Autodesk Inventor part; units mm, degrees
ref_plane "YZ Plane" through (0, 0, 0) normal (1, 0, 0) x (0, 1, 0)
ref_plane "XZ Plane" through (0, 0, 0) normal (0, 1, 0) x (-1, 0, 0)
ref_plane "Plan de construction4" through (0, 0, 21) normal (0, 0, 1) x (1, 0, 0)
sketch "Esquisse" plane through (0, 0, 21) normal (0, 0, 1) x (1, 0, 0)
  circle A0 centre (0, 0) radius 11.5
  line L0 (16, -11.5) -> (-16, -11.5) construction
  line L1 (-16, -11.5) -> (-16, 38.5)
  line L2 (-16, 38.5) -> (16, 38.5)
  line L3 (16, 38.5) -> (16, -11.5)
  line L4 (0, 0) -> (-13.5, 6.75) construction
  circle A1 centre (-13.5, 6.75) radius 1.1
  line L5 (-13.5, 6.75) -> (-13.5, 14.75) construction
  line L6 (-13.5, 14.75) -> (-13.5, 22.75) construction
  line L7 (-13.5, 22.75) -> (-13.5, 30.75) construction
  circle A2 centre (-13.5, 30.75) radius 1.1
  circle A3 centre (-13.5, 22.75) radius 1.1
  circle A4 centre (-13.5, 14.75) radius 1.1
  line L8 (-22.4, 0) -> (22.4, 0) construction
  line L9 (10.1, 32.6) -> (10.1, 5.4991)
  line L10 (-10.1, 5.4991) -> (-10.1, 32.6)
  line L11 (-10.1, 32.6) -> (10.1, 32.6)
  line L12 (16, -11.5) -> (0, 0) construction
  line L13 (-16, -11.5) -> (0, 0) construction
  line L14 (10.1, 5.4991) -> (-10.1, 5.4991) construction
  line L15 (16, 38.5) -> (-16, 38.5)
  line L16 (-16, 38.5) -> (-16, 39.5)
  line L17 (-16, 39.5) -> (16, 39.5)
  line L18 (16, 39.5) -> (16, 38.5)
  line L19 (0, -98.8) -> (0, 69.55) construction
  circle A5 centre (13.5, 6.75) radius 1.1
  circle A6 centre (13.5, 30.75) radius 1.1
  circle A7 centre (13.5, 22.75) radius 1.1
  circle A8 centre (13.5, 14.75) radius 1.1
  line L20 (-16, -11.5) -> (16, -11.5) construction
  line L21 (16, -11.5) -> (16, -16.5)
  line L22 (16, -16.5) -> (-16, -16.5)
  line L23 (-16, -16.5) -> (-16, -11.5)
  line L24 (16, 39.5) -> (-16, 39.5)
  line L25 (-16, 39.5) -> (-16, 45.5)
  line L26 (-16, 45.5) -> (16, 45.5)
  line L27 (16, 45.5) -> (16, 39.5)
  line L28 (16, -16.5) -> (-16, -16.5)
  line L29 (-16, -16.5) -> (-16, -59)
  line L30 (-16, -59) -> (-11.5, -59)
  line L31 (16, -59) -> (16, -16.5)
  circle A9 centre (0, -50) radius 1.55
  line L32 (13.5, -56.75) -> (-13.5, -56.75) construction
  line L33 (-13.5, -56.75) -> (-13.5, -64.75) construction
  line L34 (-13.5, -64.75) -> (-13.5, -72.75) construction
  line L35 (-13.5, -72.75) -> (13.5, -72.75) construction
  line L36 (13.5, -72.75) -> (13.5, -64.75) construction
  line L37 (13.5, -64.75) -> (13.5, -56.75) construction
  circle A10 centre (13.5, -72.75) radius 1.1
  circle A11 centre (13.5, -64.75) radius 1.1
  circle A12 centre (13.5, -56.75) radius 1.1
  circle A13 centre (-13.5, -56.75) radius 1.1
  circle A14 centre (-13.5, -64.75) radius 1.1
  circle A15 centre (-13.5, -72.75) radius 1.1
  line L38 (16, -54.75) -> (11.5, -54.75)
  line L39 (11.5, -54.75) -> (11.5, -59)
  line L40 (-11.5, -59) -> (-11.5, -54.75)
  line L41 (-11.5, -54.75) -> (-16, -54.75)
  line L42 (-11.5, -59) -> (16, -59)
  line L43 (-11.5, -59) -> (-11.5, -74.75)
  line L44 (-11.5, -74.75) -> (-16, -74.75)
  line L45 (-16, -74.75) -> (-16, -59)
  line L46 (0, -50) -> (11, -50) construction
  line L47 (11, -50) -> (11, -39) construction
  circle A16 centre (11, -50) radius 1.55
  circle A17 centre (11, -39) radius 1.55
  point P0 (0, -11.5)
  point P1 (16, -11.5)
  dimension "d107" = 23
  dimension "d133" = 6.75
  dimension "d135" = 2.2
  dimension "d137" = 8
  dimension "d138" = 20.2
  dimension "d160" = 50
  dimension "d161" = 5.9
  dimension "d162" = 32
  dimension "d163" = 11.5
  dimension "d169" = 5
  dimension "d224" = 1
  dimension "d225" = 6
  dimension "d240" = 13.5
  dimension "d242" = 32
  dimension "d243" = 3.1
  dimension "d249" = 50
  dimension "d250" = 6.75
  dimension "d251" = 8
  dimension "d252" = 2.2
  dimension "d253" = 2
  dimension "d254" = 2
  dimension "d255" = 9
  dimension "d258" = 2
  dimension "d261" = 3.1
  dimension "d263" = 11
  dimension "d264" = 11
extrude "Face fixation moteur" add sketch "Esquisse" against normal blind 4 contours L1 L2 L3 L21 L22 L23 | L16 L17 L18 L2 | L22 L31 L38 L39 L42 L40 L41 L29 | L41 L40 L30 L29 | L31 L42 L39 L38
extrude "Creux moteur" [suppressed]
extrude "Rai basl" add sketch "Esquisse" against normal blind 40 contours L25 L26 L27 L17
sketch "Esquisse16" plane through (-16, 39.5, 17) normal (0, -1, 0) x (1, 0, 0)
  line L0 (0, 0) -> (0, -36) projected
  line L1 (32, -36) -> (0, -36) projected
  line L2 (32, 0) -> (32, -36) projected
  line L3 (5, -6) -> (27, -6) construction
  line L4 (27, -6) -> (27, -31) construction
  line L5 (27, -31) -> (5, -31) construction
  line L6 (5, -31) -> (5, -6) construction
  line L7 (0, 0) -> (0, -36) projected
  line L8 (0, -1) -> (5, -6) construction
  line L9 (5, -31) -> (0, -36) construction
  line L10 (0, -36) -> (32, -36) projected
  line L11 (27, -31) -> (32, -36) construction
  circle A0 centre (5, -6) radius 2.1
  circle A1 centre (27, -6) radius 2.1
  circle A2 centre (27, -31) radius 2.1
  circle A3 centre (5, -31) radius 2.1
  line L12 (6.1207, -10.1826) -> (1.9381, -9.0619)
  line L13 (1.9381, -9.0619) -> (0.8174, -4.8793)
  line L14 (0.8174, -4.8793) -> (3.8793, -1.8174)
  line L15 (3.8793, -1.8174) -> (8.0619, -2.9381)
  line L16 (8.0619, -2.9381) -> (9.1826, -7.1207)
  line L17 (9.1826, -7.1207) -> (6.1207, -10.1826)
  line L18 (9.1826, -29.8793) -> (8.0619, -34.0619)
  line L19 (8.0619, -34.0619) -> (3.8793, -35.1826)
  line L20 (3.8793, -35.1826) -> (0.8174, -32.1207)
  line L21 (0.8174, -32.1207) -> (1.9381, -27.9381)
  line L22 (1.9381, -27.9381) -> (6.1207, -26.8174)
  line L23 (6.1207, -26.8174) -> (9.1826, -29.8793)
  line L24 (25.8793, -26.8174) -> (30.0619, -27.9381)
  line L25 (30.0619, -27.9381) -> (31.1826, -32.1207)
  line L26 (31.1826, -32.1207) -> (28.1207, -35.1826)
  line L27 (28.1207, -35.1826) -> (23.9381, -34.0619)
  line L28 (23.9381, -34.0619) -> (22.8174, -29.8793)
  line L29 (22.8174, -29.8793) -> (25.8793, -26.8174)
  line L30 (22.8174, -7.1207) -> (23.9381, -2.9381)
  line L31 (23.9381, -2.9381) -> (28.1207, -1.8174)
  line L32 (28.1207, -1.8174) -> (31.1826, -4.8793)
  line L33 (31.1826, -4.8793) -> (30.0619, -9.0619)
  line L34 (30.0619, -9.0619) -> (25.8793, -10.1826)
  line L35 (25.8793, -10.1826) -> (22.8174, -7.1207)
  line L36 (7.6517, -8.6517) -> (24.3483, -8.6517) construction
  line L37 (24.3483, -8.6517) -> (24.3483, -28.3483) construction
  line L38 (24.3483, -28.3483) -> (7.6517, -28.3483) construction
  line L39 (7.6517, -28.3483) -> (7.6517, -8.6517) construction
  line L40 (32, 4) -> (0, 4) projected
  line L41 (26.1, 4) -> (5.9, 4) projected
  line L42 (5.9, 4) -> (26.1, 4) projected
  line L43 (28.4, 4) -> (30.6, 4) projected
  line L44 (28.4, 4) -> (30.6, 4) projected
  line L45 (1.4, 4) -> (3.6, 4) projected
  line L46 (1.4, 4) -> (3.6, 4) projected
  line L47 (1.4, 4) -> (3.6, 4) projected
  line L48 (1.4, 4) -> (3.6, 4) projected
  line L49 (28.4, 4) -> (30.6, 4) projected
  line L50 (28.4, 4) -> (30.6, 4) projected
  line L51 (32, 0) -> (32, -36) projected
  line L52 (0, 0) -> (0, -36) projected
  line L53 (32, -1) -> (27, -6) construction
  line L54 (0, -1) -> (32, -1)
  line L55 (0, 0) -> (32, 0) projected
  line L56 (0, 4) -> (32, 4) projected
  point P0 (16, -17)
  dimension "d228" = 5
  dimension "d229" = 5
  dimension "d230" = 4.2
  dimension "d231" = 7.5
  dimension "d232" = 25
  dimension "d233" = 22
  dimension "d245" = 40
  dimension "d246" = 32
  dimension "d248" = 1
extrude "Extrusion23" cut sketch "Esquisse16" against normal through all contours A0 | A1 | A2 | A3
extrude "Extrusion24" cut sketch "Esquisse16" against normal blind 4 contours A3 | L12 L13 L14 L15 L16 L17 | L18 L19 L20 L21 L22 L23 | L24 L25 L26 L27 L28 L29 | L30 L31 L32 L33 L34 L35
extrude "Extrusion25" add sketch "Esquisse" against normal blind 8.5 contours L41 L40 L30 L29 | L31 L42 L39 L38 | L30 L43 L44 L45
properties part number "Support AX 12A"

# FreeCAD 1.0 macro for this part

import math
import FreeCAD as App
import Part
import Sketcher
Q = App.Units.Quantity


def add_polygon(sketch, points):
    """Adds a closed chain of lines whose ends are joined by coincident constraints."""
    first, n = sketch.GeometryCount, len(points)
    for a, b in zip(points, points[1:] + points[:1]):
        sketch.addGeometry(Part.LineSegment(App.Vector(*a, 0), App.Vector(*b, 0)), False)
    for i in range(n):
        sketch.addConstraint(Sketcher.Constraint("Coincident", first + i, 2, first + (i + 1) % n, 1))

doc = App.newDocument("Part")
body = doc.addObject("PartDesign::Body", "Body")

sketch1 = body.newObject("Sketcher::SketchObject", "Sketch")
sketch1.AttachmentSupport = (doc.getObject("XY_Plane"), [""])
sketch1.MapMode = "FlatFace"
sketch1.AttachmentOffset = App.Placement(App.Vector(0, 0, 21), App.Rotation())
add_polygon(sketch1, [(-16, -59), (16, -59), (16, 39.5), (-16, 39.5)])
sketch1.addGeometry(Part.Circle(App.Vector(-13.5, 6.8, 0), App.Vector(0, 0, 1), 1.1), False)
sketch1.addGeometry(Part.Circle(App.Vector(-13.5, 14.8, 0), App.Vector(0, 0, 1), 1.1), False)
sketch1.addGeometry(Part.Circle(App.Vector(-13.5, 22.8, 0), App.Vector(0, 0, 1), 1.1), False)
sketch1.addGeometry(Part.Circle(App.Vector(-13.5, 30.8, 0), App.Vector(0, 0, 1), 1.1), False)
sketch1.addGeometry(Part.ArcOfCircle(Part.Circle(App.Vector(0, 0, 0), App.Vector(0, 0, 1), 11.5), math.radians(151), math.radians(389)), False)
sketch1.addGeometry(Part.LineSegment(App.Vector(-10.1, 5.5, 0), App.Vector(-10.1, 32.6, 0)), False)
sketch1.addGeometry(Part.LineSegment(App.Vector(-10.1, 32.6, 0), App.Vector(10.1, 32.6, 0)), False)
sketch1.addGeometry(Part.LineSegment(App.Vector(10.1, 32.6, 0), App.Vector(10.1, 5.5, 0)), False)
sketch1.addGeometry(Part.Circle(App.Vector(13.5, 6.8, 0), App.Vector(0, 0, 1), 1.1), False)
sketch1.addGeometry(Part.Circle(App.Vector(13.5, 14.8, 0), App.Vector(0, 0, 1), 1.1), False)
sketch1.addGeometry(Part.Circle(App.Vector(13.5, 22.8, 0), App.Vector(0, 0, 1), 1.1), False)
sketch1.addGeometry(Part.Circle(App.Vector(13.5, 30.8, 0), App.Vector(0, 0, 1), 1.1), False)
sketch1.addGeometry(Part.Circle(App.Vector(11, -39, 0), App.Vector(0, 0, 1), 1.6), False)
sketch1.addGeometry(Part.Circle(App.Vector(0, -50, 0), App.Vector(0, 0, 1), 1.6), False)
sketch1.addGeometry(Part.Circle(App.Vector(11, -50, 0), App.Vector(0, 0, 1), 1.6), False)
sketch1.addGeometry(Part.Circle(App.Vector(13.5, -56.8, 0), App.Vector(0, 0, 1), 1.1), False)
sketch1.addGeometry(Part.Circle(App.Vector(-13.5, -56.8, 0), App.Vector(0, 0, 1), 1.1), False)
sketch1.addConstraint(Sketcher.Constraint("Coincident", 8, 1, 9, 1))
sketch1.addConstraint(Sketcher.Constraint("Coincident", 9, 2, 10, 1))
sketch1.addConstraint(Sketcher.Constraint("Coincident", 10, 2, 11, 1))
sketch1.addConstraint(Sketcher.Constraint("Coincident", 11, 2, 8, 2))
sketch1.addConstraint(Sketcher.Constraint("Horizontal", 0))
sketch1.addConstraint(Sketcher.Constraint("Vertical", 1))
sketch1.addConstraint(Sketcher.Constraint("Horizontal", 2))
sketch1.addConstraint(Sketcher.Constraint("Vertical", 3))
sketch1.addConstraint(Sketcher.Constraint("Vertical", 9))
sketch1.addConstraint(Sketcher.Constraint("Horizontal", 10))
sketch1.addConstraint(Sketcher.Constraint("Vertical", 11))
sketch1.addConstraint(Sketcher.Constraint("Coincident", 8, 3, -1, 1))
sketch1.addConstraint(Sketcher.Constraint("Equal", 4, 5))
sketch1.addConstraint(Sketcher.Constraint("Equal", 5, 6))
sketch1.addConstraint(Sketcher.Constraint("Equal", 6, 7))
sketch1.addConstraint(Sketcher.Constraint("Equal", 7, 12))
sketch1.addConstraint(Sketcher.Constraint("Equal", 12, 13))
sketch1.addConstraint(Sketcher.Constraint("Equal", 13, 14))
sketch1.addConstraint(Sketcher.Constraint("Equal", 14, 15))
sketch1.addConstraint(Sketcher.Constraint("Equal", 16, 17))
sketch1.addConstraint(Sketcher.Constraint("Equal", 17, 18))
sketch1.addConstraint(Sketcher.Constraint("Equal", 15, 19))
sketch1.addConstraint(Sketcher.Constraint("Equal", 19, 20))
sketch1.addConstraint(Sketcher.Constraint("Symmetric", 4, 3, 12, 3, -2))
sketch1.addConstraint(Sketcher.Constraint("Symmetric", 5, 3, 13, 3, -2))
sketch1.addConstraint(Sketcher.Constraint("Symmetric", 6, 3, 14, 3, -2))
sketch1.addConstraint(Sketcher.Constraint("Symmetric", 7, 3, 15, 3, -2))
sketch1.addConstraint(Sketcher.Constraint("Symmetric", 19, 3, 20, 3, -2))
sketch1.addConstraint(Sketcher.Constraint("PointOnObject", 17, 3, -2))
sketch1.addConstraint(Sketcher.Constraint("Horizontal", 17, 3, 18, 3))
sketch1.addConstraint(Sketcher.Constraint("Horizontal", 8, 1, 11, 2))
sketch1.addConstraint(Sketcher.Constraint("Vertical", 4, 3, 5, 3))
sketch1.addConstraint(Sketcher.Constraint("Vertical", 5, 3, 6, 3))
sketch1.addConstraint(Sketcher.Constraint("Vertical", 6, 3, 7, 3))
sketch1.addConstraint(Sketcher.Constraint("Vertical", 16, 3, 18, 3))
sketch1.addConstraint(Sketcher.Constraint("Vertical", 15, 3, 19, 3))
sketch1.addConstraint(Sketcher.Constraint("Diameter", 4, 2.2))
sketch1.addConstraint(Sketcher.Constraint("Diameter", 16, 3.1))
sketch1.addConstraint(Sketcher.Constraint("Radius", 8, 11.5))
sketch1.addConstraint(Sketcher.Constraint("DistanceX", 0, 1, 0, 2, 32.0))
sketch1.addConstraint(Sketcher.Constraint("DistanceX", 10, 1, 10, 2, 20.2))
sketch1.addConstraint(Sketcher.Constraint("DistanceX", -1, 1, 16, 3, 11.0))
sketch1.addConstraint(Sketcher.Constraint("DistanceY", 17, 3, -1, 1, 50.0))
sketch1.addConstraint(Sketcher.Constraint("DistanceY", 4, 3, 5, 3, 8.0))
sketch1.addConstraint(Sketcher.Constraint("DistanceY", 5, 3, 6, 3, 8.0))
sketch1.addConstraint(Sketcher.Constraint("DistanceY", 6, 3, 7, 3, 8.0))
sketch1.addConstraint(Sketcher.Constraint("DistanceY", 17, 3, 16, 3, 11.0))
sketch1.addConstraint(Sketcher.Constraint("DistanceX", 18, 3, 0, 2, 5.0))
sketch1.addConstraint(Sketcher.Constraint("DistanceY", 0, 2, 18, 3, 9.0))
sketch1.addConstraint(Sketcher.Constraint("DistanceX", 4, 3, -1, 1, 13.5))
sketch1.addConstraint(Sketcher.Constraint("DistanceY", -1, 1, 4, 3, 6.75))
sketch1.addConstraint(Sketcher.Constraint("DistanceY", 19, 3, 18, 3, 6.75))
sketch1.addConstraint(Sketcher.Constraint("DistanceY", 1, 1, 1, 2, 98.5))
sketch1.addConstraint(Sketcher.Constraint("DistanceY", -1, 1, 9, 2, 32.6))
pad1 = body.newObject("PartDesign::Pad", "Pad")
pad1.Profile = sketch1
pad1.Length = 4
pad1.Reversed = True

sketch2 = body.newObject("Sketcher::SketchObject", "Sketch001")
sketch2.AttachmentSupport = (doc.getObject("XY_Plane"), [""])
sketch2.MapMode = "FlatFace"
sketch2.AttachmentOffset = App.Placement(App.Vector(0, 0, 21), App.Rotation())
add_polygon(sketch2, [(-16, 46), (-16, 40), (16, 40), (16, 46)])
sketch2.addConstraint(Sketcher.Constraint("Vertical", 0))
sketch2.addConstraint(Sketcher.Constraint("Horizontal", 1))
sketch2.addConstraint(Sketcher.Constraint("Vertical", 2))
sketch2.addConstraint(Sketcher.Constraint("Horizontal", 3))
sketch2.addConstraint(Sketcher.Constraint("DistanceX", 1, 1, 1, 2, 32.0))
sketch2.addConstraint(Sketcher.Constraint("DistanceY", 0, 2, 0, 1, 6.0))
sketch2.addConstraint(Sketcher.Constraint("DistanceX", 0, 2, -1, 1, 16.0))
sketch2.addConstraint(Sketcher.Constraint("DistanceY", -1, 1, 0, 2, 39.5))
pad2 = body.newObject("PartDesign::Pad", "Pad001")
pad2.Profile = sketch2
pad2.Length = 40
pad2.Reversed = True

sketch3 = body.newObject("Sketcher::SketchObject", "Sketch002")
sketch3.AttachmentSupport = (doc.getObject("XZ_Plane"), [""])
sketch3.MapMode = "FlatFace"
sketch3.AttachmentOffset = App.Placement(App.Vector(0, 0, -39.5), App.Rotation())
sketch3.addGeometry(Part.Circle(App.Vector(-11, 11, 0), App.Vector(0, 0, 1), 2.1), False)
sketch3.addGeometry(Part.Circle(App.Vector(11, 11, 0), App.Vector(0, 0, 1), 2.1), False)
sketch3.addGeometry(Part.Circle(App.Vector(11, -14, 0), App.Vector(0, 0, 1), 2.1), False)
sketch3.addGeometry(Part.Circle(App.Vector(-11, -14, 0), App.Vector(0, 0, 1), 2.1), False)
sketch3.addConstraint(Sketcher.Constraint("Equal", 0, 1))
sketch3.addConstraint(Sketcher.Constraint("Equal", 1, 2))
sketch3.addConstraint(Sketcher.Constraint("Equal", 2, 3))
sketch3.addConstraint(Sketcher.Constraint("Symmetric", 0, 3, 1, 3, -2))
sketch3.addConstraint(Sketcher.Constraint("Symmetric", 2, 3, 3, 3, -2))
sketch3.addConstraint(Sketcher.Constraint("Vertical", 1, 3, 2, 3))
sketch3.addConstraint(Sketcher.Constraint("Diameter", 0, 4.2))
sketch3.addConstraint(Sketcher.Constraint("DistanceX", 0, 3, 1, 3, 22.0))
sketch3.addConstraint(Sketcher.Constraint("DistanceY", 2, 3, 1, 3, 25.0))
sketch3.addConstraint(Sketcher.Constraint("DistanceY", -1, 1, 0, 3, 11.0))
pocket1 = body.newObject("PartDesign::Pocket", "Pocket")
pocket1.Profile = sketch3
pocket1.Type = "ThroughAll"

sketch4 = body.newObject("Sketcher::SketchObject", "Sketch003")
sketch4.AttachmentSupport = (doc.getObject("XZ_Plane"), [""])
sketch4.MapMode = "FlatFace"
sketch4.AttachmentOffset = App.Placement(App.Vector(0, 0, -39.5), App.Rotation())
add_polygon(sketch4, [(-7.9, -17.1), (-6.8, -12.9), (-9.9, -9.8), (-14.1, -10.9), (-15.2, -15.1), (-12.1, -18.2)])
add_polygon(sketch4, [(-14.1, 7.9), (-9.9, 6.8), (-6.8, 9.9), (-7.9, 14.1), (-12.1, 15.2), (-15.2, 12.1)])
sketch4.addGeometry(Part.Circle(App.Vector(-11, 11, 0), App.Vector(0, 0, 1), 2.1), False)
add_polygon(sketch4, [(14.1, -10.9), (9.9, -9.8), (6.8, -12.9), (7.9, -17.1), (12.1, -18.2), (15.2, -15.1)])
sketch4.addGeometry(Part.Circle(App.Vector(11, -14, 0), App.Vector(0, 0, 1), 2.1), False)
add_polygon(sketch4, [(7.9, 14.1), (6.8, 9.9), (9.9, 6.8), (14.1, 7.9), (15.2, 12.1), (12.1, 15.2)])
sketch4.addGeometry(Part.Circle(App.Vector(11, 11, 0), App.Vector(0, 0, 1), 2.1), False)
sketch4.addConstraint(Sketcher.Constraint("Equal", 12, 19))
sketch4.addConstraint(Sketcher.Constraint("Equal", 19, 26))
sketch4.addConstraint(Sketcher.Constraint("Symmetric", 12, 3, 26, 3, -2))
sketch4.addConstraint(Sketcher.Constraint("Symmetric", 1, 2, 13, 2, -2))
sketch4.addConstraint(Sketcher.Constraint("Symmetric", 0, 2, 14, 2, -2))
sketch4.addConstraint(Sketcher.Constraint("Symmetric", 5, 2, 15, 2, -2))
sketch4.addConstraint(Sketcher.Constraint("Symmetric", 4, 2, 16, 2, -2))
sketch4.addConstraint(Sketcher.Constraint("Symmetric", 3, 2, 17, 2, -2))
sketch4.addConstraint(Sketcher.Constraint("Symmetric", 2, 2, 18, 2, -2))
sketch4.addConstraint(Sketcher.Constraint("Symmetric", 7, 2, 20, 2, -2))
sketch4.addConstraint(Sketcher.Constraint("Symmetric", 6, 2, 21, 2, -2))
sketch4.addConstraint(Sketcher.Constraint("Symmetric", 11, 2, 22, 2, -2))
sketch4.addConstraint(Sketcher.Constraint("Symmetric", 10, 2, 23, 2, -2))
sketch4.addConstraint(Sketcher.Constraint("Symmetric", 9, 2, 24, 2, -2))
sketch4.addConstraint(Sketcher.Constraint("Symmetric", 8, 2, 25, 2, -2))
sketch4.addConstraint(Sketcher.Constraint("Parallel", 0, 3))
sketch4.addConstraint(Sketcher.Constraint("Parallel", 1, 4))
sketch4.addConstraint(Sketcher.Constraint("Parallel", 2, 5))
sketch4.addConstraint(Sketcher.Constraint("Perpendicular", 3, 6))
sketch4.addConstraint(Sketcher.Constraint("Perpendicular", 4, 7))
sketch4.addConstraint(Sketcher.Constraint("Perpendicular", 5, 8))
sketch4.addConstraint(Sketcher.Constraint("Parallel", 6, 9))
sketch4.addConstraint(Sketcher.Constraint("Parallel", 7, 10))
sketch4.addConstraint(Sketcher.Constraint("Parallel", 8, 11))
sketch4.addConstraint(Sketcher.Constraint("Parallel", 9, 13))
sketch4.addConstraint(Sketcher.Constraint("Parallel", 10, 14))
sketch4.addConstraint(Sketcher.Constraint("Vertical", 19, 3, 26, 3))
sketch4.addConstraint(Sketcher.Constraint("Vertical", 1, 2, 6, 2))
sketch4.addConstraint(Sketcher.Constraint("Vertical", 0, 2, 7, 2))
sketch4.addConstraint(Sketcher.Constraint("Vertical", 5, 2, 8, 2))
sketch4.addConstraint(Sketcher.Constraint("Vertical", 4, 2, 9, 2))
sketch4.addConstraint(Sketcher.Constraint("Vertical", 3, 2, 10, 2))
sketch4.addConstraint(Sketcher.Constraint("Equal", 0, 1))
sketch4.addConstraint(Sketcher.Constraint("Equal", 1, 2))
sketch4.addConstraint(Sketcher.Constraint("Equal", 2, 3))
sketch4.addConstraint(Sketcher.Constraint("Diameter", 12, 4.2))
sketch4.addConstraint(Sketcher.Constraint("DistanceX", 12, 3, 19, 3, 22.0))
sketch4.addConstraint(Sketcher.Constraint("DistanceY", 19, 3, 12, 3, 25.0))
sketch4.addConstraint(Sketcher.Constraint("DistanceX", 7, 2, 23, 2, 22.0))
sketch4.addConstraint(Sketcher.Constraint("Angle", 0, Q("75.0003 deg")))
sketch4.addConstraint(Sketcher.Constraint("DistanceY", -1, 1, 12, 3, 11.0))
sketch4.addConstraint(Sketcher.Constraint("DistanceX", 2, 2, -1, 1, 14.062))
sketch4.addConstraint(Sketcher.Constraint("DistanceY", 2, 2, -1, 1, 10.938))
sketch4.addConstraint(Sketcher.Constraint("DistanceY", -1, 1, 8, 2, 14.062))
pocket2 = body.newObject("PartDesign::Pocket", "Pocket001")
pocket2.Profile = sketch4
pocket2.Length = 4

sketch5 = body.newObject("Sketcher::SketchObject", "Sketch004")
sketch5.AttachmentSupport = (doc.getObject("XY_Plane"), [""])
sketch5.MapMode = "FlatFace"
sketch5.AttachmentOffset = App.Placement(App.Vector(0, 0, 21), App.Rotation())
add_polygon(sketch5, [(-11.5, -54.8), (-16, -54.8), (-16, -74.8), (-11.5, -74.8)])
sketch5.addGeometry(Part.Circle(App.Vector(-13.5, -56.8, 0), App.Vector(0, 0, 1), 1.1), False)
sketch5.addGeometry(Part.Circle(App.Vector(-13.5, -64.8, 0), App.Vector(0, 0, 1), 1.1), False)
sketch5.addGeometry(Part.Circle(App.Vector(-13.5, -72.8, 0), App.Vector(0, 0, 1), 1.1), False)
add_polygon(sketch5, [(16, -59), (16, -54.8), (11.5, -54.8), (11.5, -59)])
sketch5.addGeometry(Part.Circle(App.Vector(13.5, -56.8, 0), App.Vector(0, 0, 1), 1.1), False)
sketch5.addConstraint(Sketcher.Constraint("Horizontal", 0))
sketch5.addConstraint(Sketcher.Constraint("Vertical", 1))
sketch5.addConstraint(Sketcher.Constraint("Horizontal", 2))
sketch5.addConstraint(Sketcher.Constraint("Vertical", 3))
sketch5.addConstraint(Sketcher.Constraint("Vertical", 7))
sketch5.addConstraint(Sketcher.Constraint("Horizontal", 8))
sketch5.addConstraint(Sketcher.Constraint("Vertical", 9))
sketch5.addConstraint(Sketcher.Constraint("Horizontal", 10))
sketch5.addConstraint(Sketcher.Constraint("Equal", 4, 5))
sketch5.addConstraint(Sketcher.Constraint("Equal", 5, 6))
sketch5.addConstraint(Sketcher.Constraint("Equal", 6, 11))
sketch5.addConstraint(Sketcher.Constraint("Symmetric", 4, 3, 11, 3, -2))
sketch5.addConstraint(Sketcher.Constraint("Symmetric", 0, 2, 7, 2, -2))
sketch5.addConstraint(Sketcher.Constraint("Vertical", 4, 3, 5, 3))
sketch5.addConstraint(Sketcher.Constraint("Vertical", 5, 3, 6, 3))
sketch5.addConstraint(Sketcher.Constraint("Equal", 2, 8))
sketch5.addConstraint(Sketcher.Constraint("Diameter", 4, 2.2))
sketch5.addConstraint(Sketcher.Constraint("DistanceY", 5, 3, 4, 3, 8.0))
sketch5.addConstraint(Sketcher.Constraint("DistanceY", 6, 3, 5, 3, 8.0))
sketch5.addConstraint(Sketcher.Constraint("DistanceY", 4, 3, 0, 2, 2.0))
sketch5.addConstraint(Sketcher.Constraint("DistanceY", 1, 2, 6, 3, 2.0))
sketch5.addConstraint(Sketcher.Constraint("DistanceX", 6, 3, 2, 2, 2.0))
sketch5.addConstraint(Sketcher.Constraint("DistanceX", 0, 2, 7, 2, 32.0))
sketch5.addConstraint(Sketcher.Constraint("DistanceX", 3, 2, 8, 2, 23.0))
sketch5.addConstraint(Sketcher.Constraint("DistanceY", 9, 2, -1, 1, 59.0))
sketch5.addConstraint(Sketcher.Constraint("DistanceY", 7, 1, 7, 2, 4.25))
pad3 = body.newObject("PartDesign::Pad", "Pad002")
pad3.Profile = sketch5
pad3.Length = 8.5
pad3.Reversed = True

doc.recompute()
